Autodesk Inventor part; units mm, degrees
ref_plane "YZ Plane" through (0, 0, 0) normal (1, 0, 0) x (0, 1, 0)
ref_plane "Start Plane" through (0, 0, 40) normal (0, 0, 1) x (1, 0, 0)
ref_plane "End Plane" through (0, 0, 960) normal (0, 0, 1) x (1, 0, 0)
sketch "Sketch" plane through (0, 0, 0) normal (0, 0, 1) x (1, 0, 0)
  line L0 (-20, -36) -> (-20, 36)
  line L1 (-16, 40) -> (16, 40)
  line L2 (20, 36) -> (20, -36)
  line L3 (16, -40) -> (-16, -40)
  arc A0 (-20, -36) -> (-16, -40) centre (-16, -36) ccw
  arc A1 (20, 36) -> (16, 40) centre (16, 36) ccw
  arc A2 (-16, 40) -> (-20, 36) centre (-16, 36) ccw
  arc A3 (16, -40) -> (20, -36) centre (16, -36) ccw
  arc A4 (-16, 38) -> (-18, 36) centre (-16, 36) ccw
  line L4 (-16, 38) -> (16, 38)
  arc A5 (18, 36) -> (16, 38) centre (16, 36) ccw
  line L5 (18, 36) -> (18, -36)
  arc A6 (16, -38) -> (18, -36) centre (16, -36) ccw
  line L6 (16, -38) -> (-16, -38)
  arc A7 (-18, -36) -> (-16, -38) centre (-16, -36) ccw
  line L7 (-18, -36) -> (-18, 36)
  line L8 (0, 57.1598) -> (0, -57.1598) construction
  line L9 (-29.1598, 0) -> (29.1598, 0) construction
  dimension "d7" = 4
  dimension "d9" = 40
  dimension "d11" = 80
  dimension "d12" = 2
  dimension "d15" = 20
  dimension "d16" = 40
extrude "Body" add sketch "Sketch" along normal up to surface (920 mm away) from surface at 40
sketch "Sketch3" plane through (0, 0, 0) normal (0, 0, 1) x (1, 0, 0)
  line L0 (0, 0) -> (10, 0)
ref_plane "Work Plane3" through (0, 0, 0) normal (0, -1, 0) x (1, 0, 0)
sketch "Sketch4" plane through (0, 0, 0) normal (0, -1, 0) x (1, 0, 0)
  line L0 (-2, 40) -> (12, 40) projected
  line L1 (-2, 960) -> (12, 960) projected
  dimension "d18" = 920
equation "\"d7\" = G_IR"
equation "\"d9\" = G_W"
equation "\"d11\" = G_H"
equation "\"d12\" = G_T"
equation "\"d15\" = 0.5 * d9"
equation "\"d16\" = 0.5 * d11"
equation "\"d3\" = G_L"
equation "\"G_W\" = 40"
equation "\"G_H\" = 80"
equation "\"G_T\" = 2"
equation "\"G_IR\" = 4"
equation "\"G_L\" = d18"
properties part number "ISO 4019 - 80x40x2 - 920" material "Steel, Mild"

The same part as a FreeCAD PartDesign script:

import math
import FreeCAD as App
import Part
import Sketcher

V = App.Vector
Q = App.Units.Quantity

doc = App.newDocument("Part")
body = doc.addObject("PartDesign::Body", "Body")

# Sketch on XY plane
sketch1 = body.newObject("Sketcher::SketchObject", "Sketch")
sketch1.AttachmentSupport = (doc.getObject("XY_Plane"), [""])
sketch1.MapMode = "FlatFace"
sketch1.AttachmentOffset = App.Placement(V(0, 0, 40), App.Rotation())
sketch1.addGeometry([
    Part.LineSegment(V(-20, 36, 0), V(-20, -36, 0)),  # 0
    Part.ArcOfCircle(Part.Circle(V(-16, -36, 0), V(0, 0, 1), 4), math.radians(180), math.radians(270)),  # 1
    Part.LineSegment(V(-16, -40, 0), V(16, -40, 0)),  # 2
    Part.ArcOfCircle(Part.Circle(V(16, -36, 0), V(0, 0, 1), 4), math.radians(-90), math.radians(0)),  # 3
    Part.LineSegment(V(20, -36, 0), V(20, 36, 0)),  # 4
    Part.ArcOfCircle(Part.Circle(V(16, 36, 0), V(0, 0, 1), 4), math.radians(0), math.radians(90)),  # 5
    Part.LineSegment(V(16, 40, 0), V(-16, 40, 0)),  # 6
    Part.ArcOfCircle(Part.Circle(V(-16, 36, 0), V(0, 0, 1), 4), math.radians(90), math.radians(180)),  # 7
    Part.ArcOfCircle(Part.Circle(V(-16, 36, 0), V(0, 0, 1), 2), math.radians(90), math.radians(180)),  # 8
    Part.LineSegment(V(-16, 38, 0), V(16, 38, 0)),  # 9
    Part.ArcOfCircle(Part.Circle(V(16, 36, 0), V(0, 0, 1), 2), math.radians(0), math.radians(90)),  # 10
    Part.LineSegment(V(18, 36, 0), V(18, -36, 0)),  # 11
    Part.ArcOfCircle(Part.Circle(V(16, -36, 0), V(0, 0, 1), 2), math.radians(-90), math.radians(0)),  # 12
    Part.LineSegment(V(16, -38, 0), V(-16, -38, 0)),  # 13
    Part.ArcOfCircle(Part.Circle(V(-16, -36, 0), V(0, 0, 1), 2), math.radians(180), math.radians(270)),  # 14
    Part.LineSegment(V(-18, -36, 0), V(-18, 36, 0)),  # 15
], False)
sketch1.addConstraint([
    Sketcher.Constraint("Tangent", 0, 2, 1, 1),
    Sketcher.Constraint("Tangent", 1, 2, 2, 1),
    Sketcher.Constraint("Tangent", 2, 2, 3, 1),
    Sketcher.Constraint("Tangent", 3, 2, 4, 1),
    Sketcher.Constraint("Tangent", 4, 2, 5, 1),
    Sketcher.Constraint("Tangent", 5, 2, 6, 1),
    Sketcher.Constraint("Tangent", 6, 2, 7, 1),
    Sketcher.Constraint("Tangent", 7, 2, 0, 1),
    Sketcher.Constraint("Tangent", 8, 1, 9, 1),
    Sketcher.Constraint("Tangent", 9, 2, 10, 2),
    Sketcher.Constraint("Tangent", 10, 1, 11, 1),
    Sketcher.Constraint("Tangent", 11, 2, 12, 2),
    Sketcher.Constraint("Tangent", 12, 1, 13, 1),
    Sketcher.Constraint("Tangent", 13, 2, 14, 2),
    Sketcher.Constraint("Tangent", 14, 1, 15, 1),
    Sketcher.Constraint("Tangent", 15, 2, 8, 2),
    Sketcher.Constraint("Vertical", 0),
    Sketcher.Constraint("Horizontal", 2),
    Sketcher.Constraint("Vertical", 4),
    Sketcher.Constraint("Horizontal", 6),
    Sketcher.Constraint("Horizontal", 9),
    Sketcher.Constraint("Vertical", 11),
    Sketcher.Constraint("Horizontal", 13),
    Sketcher.Constraint("Vertical", 15),
    Sketcher.Constraint("Coincident", 8, 3, 7, 3),
    Sketcher.Constraint("Coincident", 10, 3, 5, 3),
    Sketcher.Constraint("Coincident", 12, 3, 3, 3),
    Sketcher.Constraint("Equal", 1, 3),
    Sketcher.Constraint("Equal", 3, 5),
    Sketcher.Constraint("Equal", 5, 7),
    Sketcher.Constraint("Equal", 12, 14),
    Sketcher.Constraint("Symmetric", 1, 3, 5, 3, -1, 1),
    Sketcher.Constraint("Radius", 1, Q("4 mm")),
    Sketcher.Constraint("Radius", 8, Q("2 mm")),
    Sketcher.Constraint("DistanceX", 0, 2, -1, 1, Q("20 mm")),
    Sketcher.Constraint("DistanceY", 1, 2, -1, 1, Q("40 mm")),
])
pad1 = body.newObject("PartDesign::Pad", "Pad")
pad1.Profile = sketch1
pad1.Length = 920

doc.recompute()
